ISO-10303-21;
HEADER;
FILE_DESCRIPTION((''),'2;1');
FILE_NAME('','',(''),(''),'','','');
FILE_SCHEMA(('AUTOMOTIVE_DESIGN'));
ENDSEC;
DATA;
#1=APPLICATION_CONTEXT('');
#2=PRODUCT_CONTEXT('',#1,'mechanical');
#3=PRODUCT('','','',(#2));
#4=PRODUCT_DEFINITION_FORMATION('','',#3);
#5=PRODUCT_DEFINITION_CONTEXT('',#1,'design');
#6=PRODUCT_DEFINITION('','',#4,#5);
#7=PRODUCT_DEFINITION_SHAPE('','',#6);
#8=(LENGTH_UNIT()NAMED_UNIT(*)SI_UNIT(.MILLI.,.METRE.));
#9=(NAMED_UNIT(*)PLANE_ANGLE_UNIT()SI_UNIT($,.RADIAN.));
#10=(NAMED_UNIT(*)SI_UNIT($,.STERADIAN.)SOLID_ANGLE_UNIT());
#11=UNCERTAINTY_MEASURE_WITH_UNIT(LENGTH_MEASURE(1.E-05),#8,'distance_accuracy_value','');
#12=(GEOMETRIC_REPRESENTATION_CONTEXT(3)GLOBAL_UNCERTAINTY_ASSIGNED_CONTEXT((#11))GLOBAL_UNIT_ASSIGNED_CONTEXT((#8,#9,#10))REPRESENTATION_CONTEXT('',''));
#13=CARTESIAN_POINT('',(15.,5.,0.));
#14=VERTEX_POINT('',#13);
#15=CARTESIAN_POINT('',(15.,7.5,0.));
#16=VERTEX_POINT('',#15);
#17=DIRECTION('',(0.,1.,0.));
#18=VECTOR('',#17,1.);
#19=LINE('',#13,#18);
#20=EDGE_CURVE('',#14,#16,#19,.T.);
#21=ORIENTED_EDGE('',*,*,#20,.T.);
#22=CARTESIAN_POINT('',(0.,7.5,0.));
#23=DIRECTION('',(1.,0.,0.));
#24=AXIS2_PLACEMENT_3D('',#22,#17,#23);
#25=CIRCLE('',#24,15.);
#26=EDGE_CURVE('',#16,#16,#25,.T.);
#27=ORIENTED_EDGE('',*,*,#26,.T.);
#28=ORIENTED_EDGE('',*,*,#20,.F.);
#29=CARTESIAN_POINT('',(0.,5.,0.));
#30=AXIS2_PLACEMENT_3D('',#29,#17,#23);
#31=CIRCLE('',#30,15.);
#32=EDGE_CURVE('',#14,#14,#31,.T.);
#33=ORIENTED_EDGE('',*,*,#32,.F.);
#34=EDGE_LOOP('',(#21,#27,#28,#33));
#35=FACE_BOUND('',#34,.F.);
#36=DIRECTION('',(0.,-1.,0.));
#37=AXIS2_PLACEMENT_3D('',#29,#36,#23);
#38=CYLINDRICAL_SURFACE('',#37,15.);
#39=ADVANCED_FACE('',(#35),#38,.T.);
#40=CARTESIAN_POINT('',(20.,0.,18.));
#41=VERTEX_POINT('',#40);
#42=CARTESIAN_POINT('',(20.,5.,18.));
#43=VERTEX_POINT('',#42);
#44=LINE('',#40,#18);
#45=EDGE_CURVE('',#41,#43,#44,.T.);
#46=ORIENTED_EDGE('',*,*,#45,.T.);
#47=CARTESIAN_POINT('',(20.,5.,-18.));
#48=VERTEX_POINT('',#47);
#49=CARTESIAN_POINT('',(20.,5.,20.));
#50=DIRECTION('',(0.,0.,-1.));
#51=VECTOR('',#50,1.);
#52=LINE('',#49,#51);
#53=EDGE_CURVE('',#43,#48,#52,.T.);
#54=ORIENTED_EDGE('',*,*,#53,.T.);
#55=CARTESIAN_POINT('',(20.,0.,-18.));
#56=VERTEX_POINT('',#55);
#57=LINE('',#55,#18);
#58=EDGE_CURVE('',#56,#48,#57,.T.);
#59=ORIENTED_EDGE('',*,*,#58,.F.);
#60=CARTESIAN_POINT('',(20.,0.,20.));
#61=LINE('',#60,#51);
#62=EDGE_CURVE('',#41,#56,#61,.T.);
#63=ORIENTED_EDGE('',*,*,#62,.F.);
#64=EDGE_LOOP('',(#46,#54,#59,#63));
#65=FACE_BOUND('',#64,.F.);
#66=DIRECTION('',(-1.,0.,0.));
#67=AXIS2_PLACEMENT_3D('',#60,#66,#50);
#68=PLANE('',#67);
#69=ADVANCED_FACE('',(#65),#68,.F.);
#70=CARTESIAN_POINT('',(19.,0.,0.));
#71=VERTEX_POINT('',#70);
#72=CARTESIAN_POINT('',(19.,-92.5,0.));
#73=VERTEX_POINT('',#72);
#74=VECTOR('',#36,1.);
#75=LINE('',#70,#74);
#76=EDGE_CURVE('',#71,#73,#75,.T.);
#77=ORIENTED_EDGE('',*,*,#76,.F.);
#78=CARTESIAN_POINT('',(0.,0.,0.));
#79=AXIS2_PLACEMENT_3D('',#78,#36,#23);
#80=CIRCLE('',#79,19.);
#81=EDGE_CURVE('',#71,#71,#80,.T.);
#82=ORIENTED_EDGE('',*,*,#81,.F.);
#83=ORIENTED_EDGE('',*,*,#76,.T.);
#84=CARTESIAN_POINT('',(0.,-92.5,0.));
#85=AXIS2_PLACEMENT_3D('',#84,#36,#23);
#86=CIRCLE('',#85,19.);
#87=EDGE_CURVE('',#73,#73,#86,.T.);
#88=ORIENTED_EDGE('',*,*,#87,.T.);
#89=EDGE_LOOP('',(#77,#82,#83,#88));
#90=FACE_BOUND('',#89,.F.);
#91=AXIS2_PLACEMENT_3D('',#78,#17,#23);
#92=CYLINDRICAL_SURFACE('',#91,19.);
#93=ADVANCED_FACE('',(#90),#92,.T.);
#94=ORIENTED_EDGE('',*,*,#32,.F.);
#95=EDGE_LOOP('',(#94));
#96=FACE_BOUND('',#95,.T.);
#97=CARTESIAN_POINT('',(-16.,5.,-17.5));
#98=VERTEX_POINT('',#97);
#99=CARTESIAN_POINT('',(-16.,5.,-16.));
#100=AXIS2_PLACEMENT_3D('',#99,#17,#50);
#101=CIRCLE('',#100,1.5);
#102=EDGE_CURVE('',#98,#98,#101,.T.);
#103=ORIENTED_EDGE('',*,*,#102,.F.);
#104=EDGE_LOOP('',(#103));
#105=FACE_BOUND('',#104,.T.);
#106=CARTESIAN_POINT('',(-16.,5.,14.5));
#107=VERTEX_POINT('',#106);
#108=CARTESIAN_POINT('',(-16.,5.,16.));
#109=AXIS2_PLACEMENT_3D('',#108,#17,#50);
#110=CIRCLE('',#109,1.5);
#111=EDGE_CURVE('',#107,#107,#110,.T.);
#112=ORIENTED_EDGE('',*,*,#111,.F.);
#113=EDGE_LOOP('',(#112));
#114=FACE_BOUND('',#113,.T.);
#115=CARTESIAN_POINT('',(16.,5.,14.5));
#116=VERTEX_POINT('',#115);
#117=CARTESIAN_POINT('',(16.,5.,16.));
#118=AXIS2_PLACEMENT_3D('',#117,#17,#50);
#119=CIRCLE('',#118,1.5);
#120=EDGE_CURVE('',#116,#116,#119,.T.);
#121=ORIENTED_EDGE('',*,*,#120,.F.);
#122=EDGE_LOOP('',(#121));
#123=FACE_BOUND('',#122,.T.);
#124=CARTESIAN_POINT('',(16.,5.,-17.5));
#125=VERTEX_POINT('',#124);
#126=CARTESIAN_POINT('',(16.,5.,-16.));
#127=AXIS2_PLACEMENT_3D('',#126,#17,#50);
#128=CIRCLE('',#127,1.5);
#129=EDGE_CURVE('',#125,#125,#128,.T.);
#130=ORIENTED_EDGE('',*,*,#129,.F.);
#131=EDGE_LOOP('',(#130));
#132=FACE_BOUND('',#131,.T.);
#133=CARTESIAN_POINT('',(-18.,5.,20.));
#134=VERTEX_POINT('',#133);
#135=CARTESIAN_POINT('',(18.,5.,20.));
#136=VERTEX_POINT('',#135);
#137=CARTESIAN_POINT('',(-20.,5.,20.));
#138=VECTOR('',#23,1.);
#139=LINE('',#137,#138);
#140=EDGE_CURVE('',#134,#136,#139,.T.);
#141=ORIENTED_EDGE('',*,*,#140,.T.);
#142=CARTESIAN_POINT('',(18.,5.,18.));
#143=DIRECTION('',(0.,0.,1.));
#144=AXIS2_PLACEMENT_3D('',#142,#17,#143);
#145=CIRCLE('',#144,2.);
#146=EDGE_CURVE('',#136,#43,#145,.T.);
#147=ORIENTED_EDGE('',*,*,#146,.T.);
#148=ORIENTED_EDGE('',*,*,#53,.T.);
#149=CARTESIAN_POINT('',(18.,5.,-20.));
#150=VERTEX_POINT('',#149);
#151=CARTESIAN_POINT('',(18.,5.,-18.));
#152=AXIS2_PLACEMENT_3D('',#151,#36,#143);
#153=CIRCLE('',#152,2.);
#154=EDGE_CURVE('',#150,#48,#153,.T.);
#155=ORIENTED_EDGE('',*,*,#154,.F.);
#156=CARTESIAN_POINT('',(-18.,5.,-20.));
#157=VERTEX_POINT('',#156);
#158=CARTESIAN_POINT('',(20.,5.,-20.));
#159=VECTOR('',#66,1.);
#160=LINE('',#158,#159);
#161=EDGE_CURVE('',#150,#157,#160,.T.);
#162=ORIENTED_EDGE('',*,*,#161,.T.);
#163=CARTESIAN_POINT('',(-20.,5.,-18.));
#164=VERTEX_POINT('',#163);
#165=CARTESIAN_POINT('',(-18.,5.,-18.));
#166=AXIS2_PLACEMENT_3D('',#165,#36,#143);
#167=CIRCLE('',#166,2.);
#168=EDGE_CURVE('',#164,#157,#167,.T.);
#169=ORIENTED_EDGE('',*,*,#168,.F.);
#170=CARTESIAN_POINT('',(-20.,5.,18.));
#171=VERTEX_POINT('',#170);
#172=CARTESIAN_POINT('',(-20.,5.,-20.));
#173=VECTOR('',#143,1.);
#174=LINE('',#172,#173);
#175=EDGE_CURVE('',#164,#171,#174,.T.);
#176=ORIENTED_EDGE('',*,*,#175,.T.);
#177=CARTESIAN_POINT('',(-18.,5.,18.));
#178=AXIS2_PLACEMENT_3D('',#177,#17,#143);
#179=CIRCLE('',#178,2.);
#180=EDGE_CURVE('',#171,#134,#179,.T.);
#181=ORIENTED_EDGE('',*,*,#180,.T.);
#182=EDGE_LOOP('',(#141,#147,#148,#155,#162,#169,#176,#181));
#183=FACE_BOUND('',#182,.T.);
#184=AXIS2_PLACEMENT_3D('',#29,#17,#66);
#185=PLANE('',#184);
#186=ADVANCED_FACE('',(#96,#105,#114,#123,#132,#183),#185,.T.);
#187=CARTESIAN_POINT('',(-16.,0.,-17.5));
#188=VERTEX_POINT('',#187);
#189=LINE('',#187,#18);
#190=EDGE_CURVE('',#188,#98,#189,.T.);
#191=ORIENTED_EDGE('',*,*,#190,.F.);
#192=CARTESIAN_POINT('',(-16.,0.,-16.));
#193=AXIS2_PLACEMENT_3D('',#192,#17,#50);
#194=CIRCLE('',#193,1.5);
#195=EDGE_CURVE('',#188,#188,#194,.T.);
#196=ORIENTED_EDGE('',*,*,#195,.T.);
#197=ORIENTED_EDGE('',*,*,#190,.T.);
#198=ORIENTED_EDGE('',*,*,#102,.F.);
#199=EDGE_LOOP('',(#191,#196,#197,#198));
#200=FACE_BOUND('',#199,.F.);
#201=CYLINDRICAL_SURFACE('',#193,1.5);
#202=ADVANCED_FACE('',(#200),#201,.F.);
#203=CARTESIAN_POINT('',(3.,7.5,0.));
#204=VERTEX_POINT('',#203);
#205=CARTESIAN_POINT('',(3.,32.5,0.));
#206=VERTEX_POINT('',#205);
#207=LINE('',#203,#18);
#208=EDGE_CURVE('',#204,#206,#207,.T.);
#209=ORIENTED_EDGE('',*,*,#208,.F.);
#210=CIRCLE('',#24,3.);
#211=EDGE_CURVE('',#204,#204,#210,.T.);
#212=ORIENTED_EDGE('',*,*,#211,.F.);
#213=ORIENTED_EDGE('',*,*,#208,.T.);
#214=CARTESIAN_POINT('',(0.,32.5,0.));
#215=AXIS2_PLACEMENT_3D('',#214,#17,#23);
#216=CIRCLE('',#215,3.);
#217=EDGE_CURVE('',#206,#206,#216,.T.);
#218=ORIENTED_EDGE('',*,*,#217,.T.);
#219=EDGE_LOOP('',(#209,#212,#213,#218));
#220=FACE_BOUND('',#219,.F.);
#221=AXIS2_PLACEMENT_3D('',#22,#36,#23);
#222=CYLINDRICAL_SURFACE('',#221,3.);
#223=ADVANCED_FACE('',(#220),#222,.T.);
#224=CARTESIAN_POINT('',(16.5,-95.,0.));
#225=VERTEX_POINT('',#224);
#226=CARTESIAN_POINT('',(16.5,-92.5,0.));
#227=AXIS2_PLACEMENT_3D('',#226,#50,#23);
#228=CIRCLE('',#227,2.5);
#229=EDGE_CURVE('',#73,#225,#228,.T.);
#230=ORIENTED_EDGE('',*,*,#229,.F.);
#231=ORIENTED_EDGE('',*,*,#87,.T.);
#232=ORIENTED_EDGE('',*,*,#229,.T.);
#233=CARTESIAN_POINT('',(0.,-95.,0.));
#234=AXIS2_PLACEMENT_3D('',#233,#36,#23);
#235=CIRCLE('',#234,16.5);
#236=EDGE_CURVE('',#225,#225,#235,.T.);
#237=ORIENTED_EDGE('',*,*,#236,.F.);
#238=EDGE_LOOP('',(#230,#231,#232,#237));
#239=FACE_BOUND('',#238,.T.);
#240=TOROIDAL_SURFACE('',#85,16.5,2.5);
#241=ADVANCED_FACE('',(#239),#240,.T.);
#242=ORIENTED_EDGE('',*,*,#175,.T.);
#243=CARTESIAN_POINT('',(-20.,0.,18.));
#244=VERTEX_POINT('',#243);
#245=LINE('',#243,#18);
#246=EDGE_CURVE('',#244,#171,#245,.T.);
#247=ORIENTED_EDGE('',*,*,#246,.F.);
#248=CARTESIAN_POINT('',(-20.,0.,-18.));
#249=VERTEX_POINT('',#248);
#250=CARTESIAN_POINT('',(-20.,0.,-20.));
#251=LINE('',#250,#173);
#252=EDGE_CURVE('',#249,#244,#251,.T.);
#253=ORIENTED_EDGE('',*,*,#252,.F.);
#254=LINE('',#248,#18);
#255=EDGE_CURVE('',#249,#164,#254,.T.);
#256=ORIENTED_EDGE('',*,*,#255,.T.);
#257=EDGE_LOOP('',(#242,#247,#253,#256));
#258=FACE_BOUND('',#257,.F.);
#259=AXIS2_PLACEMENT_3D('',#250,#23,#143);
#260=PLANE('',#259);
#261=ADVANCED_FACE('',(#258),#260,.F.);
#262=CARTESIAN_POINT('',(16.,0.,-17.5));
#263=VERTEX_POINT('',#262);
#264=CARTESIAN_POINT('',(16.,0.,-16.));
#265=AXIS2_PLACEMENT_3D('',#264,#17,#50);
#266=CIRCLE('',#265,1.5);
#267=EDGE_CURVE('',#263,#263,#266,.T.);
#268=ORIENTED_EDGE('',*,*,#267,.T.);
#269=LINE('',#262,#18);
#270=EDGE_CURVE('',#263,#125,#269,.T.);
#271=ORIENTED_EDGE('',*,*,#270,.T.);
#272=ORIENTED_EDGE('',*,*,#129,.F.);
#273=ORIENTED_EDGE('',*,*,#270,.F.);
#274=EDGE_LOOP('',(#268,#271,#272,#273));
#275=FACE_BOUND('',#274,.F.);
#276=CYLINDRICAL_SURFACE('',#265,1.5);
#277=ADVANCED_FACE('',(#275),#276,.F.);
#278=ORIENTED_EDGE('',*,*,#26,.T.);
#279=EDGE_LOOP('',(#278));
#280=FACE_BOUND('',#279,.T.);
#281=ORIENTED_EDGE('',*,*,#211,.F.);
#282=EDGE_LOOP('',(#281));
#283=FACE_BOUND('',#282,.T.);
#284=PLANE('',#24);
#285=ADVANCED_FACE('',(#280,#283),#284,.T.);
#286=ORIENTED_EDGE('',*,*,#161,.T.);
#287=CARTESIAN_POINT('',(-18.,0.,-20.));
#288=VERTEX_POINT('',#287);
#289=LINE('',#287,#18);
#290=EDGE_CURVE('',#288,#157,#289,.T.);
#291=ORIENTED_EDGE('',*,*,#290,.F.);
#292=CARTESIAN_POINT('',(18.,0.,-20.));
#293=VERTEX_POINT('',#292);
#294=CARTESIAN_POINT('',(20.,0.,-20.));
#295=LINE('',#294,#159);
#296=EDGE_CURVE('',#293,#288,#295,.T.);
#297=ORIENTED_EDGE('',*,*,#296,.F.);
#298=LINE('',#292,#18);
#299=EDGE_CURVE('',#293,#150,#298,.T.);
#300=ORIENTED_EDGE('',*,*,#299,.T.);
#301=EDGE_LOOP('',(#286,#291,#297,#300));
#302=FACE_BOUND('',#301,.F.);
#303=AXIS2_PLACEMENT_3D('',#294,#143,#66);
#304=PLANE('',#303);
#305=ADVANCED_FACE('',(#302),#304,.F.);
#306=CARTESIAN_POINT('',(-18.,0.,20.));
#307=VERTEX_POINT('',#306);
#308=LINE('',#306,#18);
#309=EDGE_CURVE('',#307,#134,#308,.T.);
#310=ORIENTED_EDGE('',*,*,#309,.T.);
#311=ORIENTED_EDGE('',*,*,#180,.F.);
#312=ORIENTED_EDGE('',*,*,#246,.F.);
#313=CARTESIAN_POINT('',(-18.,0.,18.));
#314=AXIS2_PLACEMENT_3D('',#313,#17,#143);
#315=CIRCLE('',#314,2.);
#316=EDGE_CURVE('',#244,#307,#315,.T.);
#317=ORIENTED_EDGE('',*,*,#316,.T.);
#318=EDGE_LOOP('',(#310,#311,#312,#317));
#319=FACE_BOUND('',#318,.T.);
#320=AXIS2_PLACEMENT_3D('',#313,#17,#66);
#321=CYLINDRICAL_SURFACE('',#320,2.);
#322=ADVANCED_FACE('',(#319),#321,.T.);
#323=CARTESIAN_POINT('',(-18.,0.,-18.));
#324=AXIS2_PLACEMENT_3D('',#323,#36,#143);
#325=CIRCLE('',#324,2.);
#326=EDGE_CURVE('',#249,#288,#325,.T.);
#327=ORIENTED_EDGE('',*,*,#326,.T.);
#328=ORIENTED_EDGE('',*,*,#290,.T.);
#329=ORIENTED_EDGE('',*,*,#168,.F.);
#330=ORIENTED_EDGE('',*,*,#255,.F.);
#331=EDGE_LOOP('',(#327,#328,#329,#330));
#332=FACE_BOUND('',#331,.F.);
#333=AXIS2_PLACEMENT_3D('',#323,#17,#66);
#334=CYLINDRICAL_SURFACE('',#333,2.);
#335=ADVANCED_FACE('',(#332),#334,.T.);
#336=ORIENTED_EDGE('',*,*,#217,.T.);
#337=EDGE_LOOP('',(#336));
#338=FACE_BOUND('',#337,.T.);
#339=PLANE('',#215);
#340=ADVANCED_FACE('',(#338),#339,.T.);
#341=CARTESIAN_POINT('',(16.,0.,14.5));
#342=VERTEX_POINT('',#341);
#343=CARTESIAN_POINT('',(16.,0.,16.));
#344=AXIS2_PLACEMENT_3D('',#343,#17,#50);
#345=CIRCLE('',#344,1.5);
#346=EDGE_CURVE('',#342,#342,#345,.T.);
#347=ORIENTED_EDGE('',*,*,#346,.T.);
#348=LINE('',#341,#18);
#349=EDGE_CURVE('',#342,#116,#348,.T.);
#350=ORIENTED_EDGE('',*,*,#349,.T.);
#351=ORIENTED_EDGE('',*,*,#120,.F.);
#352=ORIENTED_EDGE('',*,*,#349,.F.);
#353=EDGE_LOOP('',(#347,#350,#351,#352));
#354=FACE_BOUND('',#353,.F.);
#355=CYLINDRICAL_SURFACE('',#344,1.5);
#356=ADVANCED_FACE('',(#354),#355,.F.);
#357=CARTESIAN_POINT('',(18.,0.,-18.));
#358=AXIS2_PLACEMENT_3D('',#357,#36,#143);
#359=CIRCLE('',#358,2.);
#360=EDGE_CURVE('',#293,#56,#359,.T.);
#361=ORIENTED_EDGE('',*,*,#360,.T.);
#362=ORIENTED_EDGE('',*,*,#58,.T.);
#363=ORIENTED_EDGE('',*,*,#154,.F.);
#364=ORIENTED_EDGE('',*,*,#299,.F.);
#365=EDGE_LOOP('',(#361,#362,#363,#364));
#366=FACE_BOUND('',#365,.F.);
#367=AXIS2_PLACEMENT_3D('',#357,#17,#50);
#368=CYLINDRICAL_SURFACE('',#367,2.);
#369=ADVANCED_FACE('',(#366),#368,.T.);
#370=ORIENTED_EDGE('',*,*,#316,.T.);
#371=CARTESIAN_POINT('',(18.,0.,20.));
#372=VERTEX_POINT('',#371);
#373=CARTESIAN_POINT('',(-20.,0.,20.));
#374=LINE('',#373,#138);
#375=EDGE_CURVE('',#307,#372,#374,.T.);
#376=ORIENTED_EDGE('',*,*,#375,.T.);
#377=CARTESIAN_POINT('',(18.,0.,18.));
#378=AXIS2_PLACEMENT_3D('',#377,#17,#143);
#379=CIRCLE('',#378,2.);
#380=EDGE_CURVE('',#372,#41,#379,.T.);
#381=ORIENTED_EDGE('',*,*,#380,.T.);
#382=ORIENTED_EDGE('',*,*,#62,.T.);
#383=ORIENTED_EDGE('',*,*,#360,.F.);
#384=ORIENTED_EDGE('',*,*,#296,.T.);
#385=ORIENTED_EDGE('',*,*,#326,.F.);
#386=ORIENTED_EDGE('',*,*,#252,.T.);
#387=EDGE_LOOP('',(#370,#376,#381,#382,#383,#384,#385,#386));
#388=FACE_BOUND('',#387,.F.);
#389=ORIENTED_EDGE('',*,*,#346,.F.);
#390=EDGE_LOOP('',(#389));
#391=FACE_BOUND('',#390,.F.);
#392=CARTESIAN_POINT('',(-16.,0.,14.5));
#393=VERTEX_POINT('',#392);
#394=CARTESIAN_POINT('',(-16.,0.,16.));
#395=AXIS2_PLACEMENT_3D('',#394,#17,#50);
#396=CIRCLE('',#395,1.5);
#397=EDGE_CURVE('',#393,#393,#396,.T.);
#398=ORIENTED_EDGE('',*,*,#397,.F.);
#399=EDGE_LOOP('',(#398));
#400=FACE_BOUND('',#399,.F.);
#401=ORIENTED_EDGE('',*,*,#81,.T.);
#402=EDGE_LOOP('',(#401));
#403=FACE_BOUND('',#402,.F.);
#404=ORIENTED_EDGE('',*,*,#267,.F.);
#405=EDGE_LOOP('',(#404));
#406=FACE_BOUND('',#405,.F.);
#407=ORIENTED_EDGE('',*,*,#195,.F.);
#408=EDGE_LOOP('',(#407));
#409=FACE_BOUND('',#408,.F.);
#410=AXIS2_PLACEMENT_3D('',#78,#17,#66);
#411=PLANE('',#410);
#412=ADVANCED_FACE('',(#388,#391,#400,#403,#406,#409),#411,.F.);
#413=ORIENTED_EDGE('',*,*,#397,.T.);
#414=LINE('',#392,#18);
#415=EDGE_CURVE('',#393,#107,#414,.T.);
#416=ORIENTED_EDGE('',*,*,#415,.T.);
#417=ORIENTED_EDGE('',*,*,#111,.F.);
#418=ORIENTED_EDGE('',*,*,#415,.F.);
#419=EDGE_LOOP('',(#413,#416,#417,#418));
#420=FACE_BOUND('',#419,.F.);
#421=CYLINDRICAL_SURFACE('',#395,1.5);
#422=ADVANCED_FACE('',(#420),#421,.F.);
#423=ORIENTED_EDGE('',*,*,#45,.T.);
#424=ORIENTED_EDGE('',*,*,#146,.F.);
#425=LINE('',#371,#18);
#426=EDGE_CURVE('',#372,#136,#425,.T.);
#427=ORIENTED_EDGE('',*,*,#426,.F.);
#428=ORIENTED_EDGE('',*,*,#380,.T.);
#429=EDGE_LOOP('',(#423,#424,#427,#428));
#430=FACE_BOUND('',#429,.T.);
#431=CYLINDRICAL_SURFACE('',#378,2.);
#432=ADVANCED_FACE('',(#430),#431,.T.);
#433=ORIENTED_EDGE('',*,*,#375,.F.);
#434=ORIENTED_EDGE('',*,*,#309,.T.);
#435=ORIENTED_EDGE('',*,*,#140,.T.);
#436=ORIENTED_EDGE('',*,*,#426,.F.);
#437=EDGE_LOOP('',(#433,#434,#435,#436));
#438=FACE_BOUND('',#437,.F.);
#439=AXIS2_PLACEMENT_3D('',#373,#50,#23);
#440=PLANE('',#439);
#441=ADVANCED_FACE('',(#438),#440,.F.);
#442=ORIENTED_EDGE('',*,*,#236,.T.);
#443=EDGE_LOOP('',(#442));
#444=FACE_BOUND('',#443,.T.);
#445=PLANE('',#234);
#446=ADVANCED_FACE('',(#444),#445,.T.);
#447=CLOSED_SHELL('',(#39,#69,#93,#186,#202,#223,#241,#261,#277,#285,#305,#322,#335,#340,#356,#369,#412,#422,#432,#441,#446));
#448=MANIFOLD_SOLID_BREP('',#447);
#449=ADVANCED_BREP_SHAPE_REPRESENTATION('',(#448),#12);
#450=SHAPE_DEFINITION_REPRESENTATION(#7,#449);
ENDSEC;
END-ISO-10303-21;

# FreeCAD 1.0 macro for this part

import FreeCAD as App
import Part
import Sketcher


def edges_at(feature, points):
    """Names of the edges that pass closest to the given points."""
    edges = feature.Shape.Edges
    near = lambda p: min(range(len(edges)), key=lambda i: edges[i].distToShape(Part.Vertex(*p))[0])
    return sorted({f"Edge{near(p) + 1}" for p in points})


def add_polygon(sketch, points):
    """Adds a closed chain of lines whose ends are joined by coincident constraints."""
    first, n = sketch.GeometryCount, len(points)
    for a, b in zip(points, points[1:] + points[:1]):
        sketch.addGeometry(Part.LineSegment(App.Vector(*a, 0), App.Vector(*b, 0)), False)
    for i in range(n):
        sketch.addConstraint(Sketcher.Constraint("Coincident", first + i, 2, first + (i + 1) % n, 1))

doc = App.newDocument("Part")
body = doc.addObject("PartDesign::Body", "Body")

# Sketch on XZ plane
sketch1 = body.newObject("Sketcher::SketchObject", "Sketch")
sketch1.AttachmentSupport = (doc.getObject("XZ_Plane"), [""])
sketch1.MapMode = "FlatFace"
add_polygon(sketch1, [(-20, -20), (-20, 20), (20, 20), (20, -20)])  # lines 0-3
sketch1.addConstraint(Sketcher.Constraint("Vertical", 0))
sketch1.addConstraint(Sketcher.Constraint("Horizontal", 1))
sketch1.addConstraint(Sketcher.Constraint("Vertical", 2))
sketch1.addConstraint(Sketcher.Constraint("Horizontal", 3))
sketch1.addConstraint(Sketcher.Constraint("Symmetric", 0, 2, 2, 2, -1, 1))
sketch1.addConstraint(Sketcher.Constraint("Equal", 3, 0))
sketch1.addConstraint(Sketcher.Constraint("DistanceX", 1, 1, 1, 2, 40.0))
pad1 = body.newObject("PartDesign::Pad", "Pad")
pad1.Profile = sketch1
pad1.Length = 5
pad1.Reversed = True

# Sketch on XZ plane
sketch2 = body.newObject("Sketcher::SketchObject", "Sketch001")
sketch2.AttachmentSupport = (doc.getObject("XZ_Plane"), [""])
sketch2.MapMode = "FlatFace"
sketch2.AttachmentOffset = App.Placement(App.Vector(0, 0, -5), App.Rotation())
sketch2.addGeometry(Part.Circle(App.Vector(0, 0, 0), App.Vector(0, 0, 1), 15), False)
sketch2.addConstraint(Sketcher.Constraint("Coincident", 0, 3, -1, 1))
sketch2.addConstraint(Sketcher.Constraint("Diameter", 0, 30.0))
pad2 = body.newObject("PartDesign::Pad", "Pad001")
pad2.Profile = sketch2
pad2.Length = 2.5
pad2.Reversed = True

# Sketch on XZ plane
sketch3 = body.newObject("Sketcher::SketchObject", "Sketch002")
sketch3.AttachmentSupport = (doc.getObject("XZ_Plane"), [""])
sketch3.MapMode = "FlatFace"
sketch3.addGeometry(Part.Circle(App.Vector(0, 0, 0), App.Vector(0, 0, 1), 19), False)
sketch3.addConstraint(Sketcher.Constraint("Coincident", 0, 3, -1, 1))
sketch3.addConstraint(Sketcher.Constraint("Diameter", 0, 38.0))
pad3 = body.newObject("PartDesign::Pad", "Pad002")
pad3.Profile = sketch3
pad3.Length = 95
doc.recompute()

fillet = body.newObject("PartDesign::Fillet", "Fillet")
fillet.Base = (pad3, edges_at(pad3, [(-19, -95, 0)]))
fillet.Radius = 2.5
doc.recompute()

fillet2 = body.newObject("PartDesign::Fillet", "Fillet001")
fillet2.Base = (fillet, edges_at(fillet, [
    (20, 2.5, -20),
    (-20, 2.5, -20),
    (-20, 2.5, 20),
    (20, 2.5, 20),
]))
fillet2.Radius = 2

# Sketch on XZ plane
sketch4 = body.newObject("Sketcher::SketchObject", "Sketch003")
sketch4.AttachmentSupport = (doc.getObject("XZ_Plane"), [""])
sketch4.MapMode = "FlatFace"
sketch4.addGeometry(Part.Circle(App.Vector(16, -16, 0), App.Vector(0, 0, 1), 1.5), False)
sketch4.addGeometry(Part.Circle(App.Vector(16, 16, 0), App.Vector(0, 0, 1), 1.5), False)
sketch4.addGeometry(Part.Circle(App.Vector(-16, -16, 0), App.Vector(0, 0, 1), 1.5), False)
sketch4.addGeometry(Part.Circle(App.Vector(-16, 16, 0), App.Vector(0, 0, 1), 1.5), False)
sketch4.addConstraint(Sketcher.Constraint("Equal", 0, 1))
sketch4.addConstraint(Sketcher.Constraint("Equal", 1, 2))
sketch4.addConstraint(Sketcher.Constraint("Equal", 2, 3))
sketch4.addConstraint(Sketcher.Constraint("Symmetric", 1, 3, 2, 3, -1, 1))
sketch4.addConstraint(Sketcher.Constraint("Symmetric", 0, 3, 3, 3, -1, 1))
sketch4.addConstraint(Sketcher.Constraint("Symmetric", 0, 3, 2, 3, -2))
sketch4.addConstraint(Sketcher.Constraint("Diameter", 0, 3.0))
sketch4.addConstraint(Sketcher.Constraint("DistanceX", -1, 1, 0, 3, 16.0))
sketch4.addConstraint(Sketcher.Constraint("DistanceY", 0, 3, -1, 1, 16.0))
doc.recompute()
hole = body.newObject("PartDesign::Hole", "Hole")
hole.Profile = sketch4
hole.ThreadType = "None"
hole.Diameter = 3
hole.DepthType = "Dimension"
hole.Depth = 5
hole.DrillPoint = "Angled"
hole.DrillPointAngle = 118

# Sketch on XZ plane
sketch5 = body.newObject("Sketcher::SketchObject", "Sketch004")
sketch5.AttachmentSupport = (doc.getObject("XZ_Plane"), [""])
sketch5.MapMode = "FlatFace"
sketch5.AttachmentOffset = App.Placement(App.Vector(0, 0, -7.5), App.Rotation())
sketch5.addGeometry(Part.Circle(App.Vector(0, 0, 0), App.Vector(0, 0, 1), 3), False)
sketch5.addConstraint(Sketcher.Constraint("Coincident", 0, 3, -1, 1))
sketch5.addConstraint(Sketcher.Constraint("Diameter", 0, 6.0))
pad4 = body.newObject("PartDesign::Pad", "Pad003")
pad4.Profile = sketch5
pad4.Length = 25
pad4.Reversed = True

doc.recompute()
